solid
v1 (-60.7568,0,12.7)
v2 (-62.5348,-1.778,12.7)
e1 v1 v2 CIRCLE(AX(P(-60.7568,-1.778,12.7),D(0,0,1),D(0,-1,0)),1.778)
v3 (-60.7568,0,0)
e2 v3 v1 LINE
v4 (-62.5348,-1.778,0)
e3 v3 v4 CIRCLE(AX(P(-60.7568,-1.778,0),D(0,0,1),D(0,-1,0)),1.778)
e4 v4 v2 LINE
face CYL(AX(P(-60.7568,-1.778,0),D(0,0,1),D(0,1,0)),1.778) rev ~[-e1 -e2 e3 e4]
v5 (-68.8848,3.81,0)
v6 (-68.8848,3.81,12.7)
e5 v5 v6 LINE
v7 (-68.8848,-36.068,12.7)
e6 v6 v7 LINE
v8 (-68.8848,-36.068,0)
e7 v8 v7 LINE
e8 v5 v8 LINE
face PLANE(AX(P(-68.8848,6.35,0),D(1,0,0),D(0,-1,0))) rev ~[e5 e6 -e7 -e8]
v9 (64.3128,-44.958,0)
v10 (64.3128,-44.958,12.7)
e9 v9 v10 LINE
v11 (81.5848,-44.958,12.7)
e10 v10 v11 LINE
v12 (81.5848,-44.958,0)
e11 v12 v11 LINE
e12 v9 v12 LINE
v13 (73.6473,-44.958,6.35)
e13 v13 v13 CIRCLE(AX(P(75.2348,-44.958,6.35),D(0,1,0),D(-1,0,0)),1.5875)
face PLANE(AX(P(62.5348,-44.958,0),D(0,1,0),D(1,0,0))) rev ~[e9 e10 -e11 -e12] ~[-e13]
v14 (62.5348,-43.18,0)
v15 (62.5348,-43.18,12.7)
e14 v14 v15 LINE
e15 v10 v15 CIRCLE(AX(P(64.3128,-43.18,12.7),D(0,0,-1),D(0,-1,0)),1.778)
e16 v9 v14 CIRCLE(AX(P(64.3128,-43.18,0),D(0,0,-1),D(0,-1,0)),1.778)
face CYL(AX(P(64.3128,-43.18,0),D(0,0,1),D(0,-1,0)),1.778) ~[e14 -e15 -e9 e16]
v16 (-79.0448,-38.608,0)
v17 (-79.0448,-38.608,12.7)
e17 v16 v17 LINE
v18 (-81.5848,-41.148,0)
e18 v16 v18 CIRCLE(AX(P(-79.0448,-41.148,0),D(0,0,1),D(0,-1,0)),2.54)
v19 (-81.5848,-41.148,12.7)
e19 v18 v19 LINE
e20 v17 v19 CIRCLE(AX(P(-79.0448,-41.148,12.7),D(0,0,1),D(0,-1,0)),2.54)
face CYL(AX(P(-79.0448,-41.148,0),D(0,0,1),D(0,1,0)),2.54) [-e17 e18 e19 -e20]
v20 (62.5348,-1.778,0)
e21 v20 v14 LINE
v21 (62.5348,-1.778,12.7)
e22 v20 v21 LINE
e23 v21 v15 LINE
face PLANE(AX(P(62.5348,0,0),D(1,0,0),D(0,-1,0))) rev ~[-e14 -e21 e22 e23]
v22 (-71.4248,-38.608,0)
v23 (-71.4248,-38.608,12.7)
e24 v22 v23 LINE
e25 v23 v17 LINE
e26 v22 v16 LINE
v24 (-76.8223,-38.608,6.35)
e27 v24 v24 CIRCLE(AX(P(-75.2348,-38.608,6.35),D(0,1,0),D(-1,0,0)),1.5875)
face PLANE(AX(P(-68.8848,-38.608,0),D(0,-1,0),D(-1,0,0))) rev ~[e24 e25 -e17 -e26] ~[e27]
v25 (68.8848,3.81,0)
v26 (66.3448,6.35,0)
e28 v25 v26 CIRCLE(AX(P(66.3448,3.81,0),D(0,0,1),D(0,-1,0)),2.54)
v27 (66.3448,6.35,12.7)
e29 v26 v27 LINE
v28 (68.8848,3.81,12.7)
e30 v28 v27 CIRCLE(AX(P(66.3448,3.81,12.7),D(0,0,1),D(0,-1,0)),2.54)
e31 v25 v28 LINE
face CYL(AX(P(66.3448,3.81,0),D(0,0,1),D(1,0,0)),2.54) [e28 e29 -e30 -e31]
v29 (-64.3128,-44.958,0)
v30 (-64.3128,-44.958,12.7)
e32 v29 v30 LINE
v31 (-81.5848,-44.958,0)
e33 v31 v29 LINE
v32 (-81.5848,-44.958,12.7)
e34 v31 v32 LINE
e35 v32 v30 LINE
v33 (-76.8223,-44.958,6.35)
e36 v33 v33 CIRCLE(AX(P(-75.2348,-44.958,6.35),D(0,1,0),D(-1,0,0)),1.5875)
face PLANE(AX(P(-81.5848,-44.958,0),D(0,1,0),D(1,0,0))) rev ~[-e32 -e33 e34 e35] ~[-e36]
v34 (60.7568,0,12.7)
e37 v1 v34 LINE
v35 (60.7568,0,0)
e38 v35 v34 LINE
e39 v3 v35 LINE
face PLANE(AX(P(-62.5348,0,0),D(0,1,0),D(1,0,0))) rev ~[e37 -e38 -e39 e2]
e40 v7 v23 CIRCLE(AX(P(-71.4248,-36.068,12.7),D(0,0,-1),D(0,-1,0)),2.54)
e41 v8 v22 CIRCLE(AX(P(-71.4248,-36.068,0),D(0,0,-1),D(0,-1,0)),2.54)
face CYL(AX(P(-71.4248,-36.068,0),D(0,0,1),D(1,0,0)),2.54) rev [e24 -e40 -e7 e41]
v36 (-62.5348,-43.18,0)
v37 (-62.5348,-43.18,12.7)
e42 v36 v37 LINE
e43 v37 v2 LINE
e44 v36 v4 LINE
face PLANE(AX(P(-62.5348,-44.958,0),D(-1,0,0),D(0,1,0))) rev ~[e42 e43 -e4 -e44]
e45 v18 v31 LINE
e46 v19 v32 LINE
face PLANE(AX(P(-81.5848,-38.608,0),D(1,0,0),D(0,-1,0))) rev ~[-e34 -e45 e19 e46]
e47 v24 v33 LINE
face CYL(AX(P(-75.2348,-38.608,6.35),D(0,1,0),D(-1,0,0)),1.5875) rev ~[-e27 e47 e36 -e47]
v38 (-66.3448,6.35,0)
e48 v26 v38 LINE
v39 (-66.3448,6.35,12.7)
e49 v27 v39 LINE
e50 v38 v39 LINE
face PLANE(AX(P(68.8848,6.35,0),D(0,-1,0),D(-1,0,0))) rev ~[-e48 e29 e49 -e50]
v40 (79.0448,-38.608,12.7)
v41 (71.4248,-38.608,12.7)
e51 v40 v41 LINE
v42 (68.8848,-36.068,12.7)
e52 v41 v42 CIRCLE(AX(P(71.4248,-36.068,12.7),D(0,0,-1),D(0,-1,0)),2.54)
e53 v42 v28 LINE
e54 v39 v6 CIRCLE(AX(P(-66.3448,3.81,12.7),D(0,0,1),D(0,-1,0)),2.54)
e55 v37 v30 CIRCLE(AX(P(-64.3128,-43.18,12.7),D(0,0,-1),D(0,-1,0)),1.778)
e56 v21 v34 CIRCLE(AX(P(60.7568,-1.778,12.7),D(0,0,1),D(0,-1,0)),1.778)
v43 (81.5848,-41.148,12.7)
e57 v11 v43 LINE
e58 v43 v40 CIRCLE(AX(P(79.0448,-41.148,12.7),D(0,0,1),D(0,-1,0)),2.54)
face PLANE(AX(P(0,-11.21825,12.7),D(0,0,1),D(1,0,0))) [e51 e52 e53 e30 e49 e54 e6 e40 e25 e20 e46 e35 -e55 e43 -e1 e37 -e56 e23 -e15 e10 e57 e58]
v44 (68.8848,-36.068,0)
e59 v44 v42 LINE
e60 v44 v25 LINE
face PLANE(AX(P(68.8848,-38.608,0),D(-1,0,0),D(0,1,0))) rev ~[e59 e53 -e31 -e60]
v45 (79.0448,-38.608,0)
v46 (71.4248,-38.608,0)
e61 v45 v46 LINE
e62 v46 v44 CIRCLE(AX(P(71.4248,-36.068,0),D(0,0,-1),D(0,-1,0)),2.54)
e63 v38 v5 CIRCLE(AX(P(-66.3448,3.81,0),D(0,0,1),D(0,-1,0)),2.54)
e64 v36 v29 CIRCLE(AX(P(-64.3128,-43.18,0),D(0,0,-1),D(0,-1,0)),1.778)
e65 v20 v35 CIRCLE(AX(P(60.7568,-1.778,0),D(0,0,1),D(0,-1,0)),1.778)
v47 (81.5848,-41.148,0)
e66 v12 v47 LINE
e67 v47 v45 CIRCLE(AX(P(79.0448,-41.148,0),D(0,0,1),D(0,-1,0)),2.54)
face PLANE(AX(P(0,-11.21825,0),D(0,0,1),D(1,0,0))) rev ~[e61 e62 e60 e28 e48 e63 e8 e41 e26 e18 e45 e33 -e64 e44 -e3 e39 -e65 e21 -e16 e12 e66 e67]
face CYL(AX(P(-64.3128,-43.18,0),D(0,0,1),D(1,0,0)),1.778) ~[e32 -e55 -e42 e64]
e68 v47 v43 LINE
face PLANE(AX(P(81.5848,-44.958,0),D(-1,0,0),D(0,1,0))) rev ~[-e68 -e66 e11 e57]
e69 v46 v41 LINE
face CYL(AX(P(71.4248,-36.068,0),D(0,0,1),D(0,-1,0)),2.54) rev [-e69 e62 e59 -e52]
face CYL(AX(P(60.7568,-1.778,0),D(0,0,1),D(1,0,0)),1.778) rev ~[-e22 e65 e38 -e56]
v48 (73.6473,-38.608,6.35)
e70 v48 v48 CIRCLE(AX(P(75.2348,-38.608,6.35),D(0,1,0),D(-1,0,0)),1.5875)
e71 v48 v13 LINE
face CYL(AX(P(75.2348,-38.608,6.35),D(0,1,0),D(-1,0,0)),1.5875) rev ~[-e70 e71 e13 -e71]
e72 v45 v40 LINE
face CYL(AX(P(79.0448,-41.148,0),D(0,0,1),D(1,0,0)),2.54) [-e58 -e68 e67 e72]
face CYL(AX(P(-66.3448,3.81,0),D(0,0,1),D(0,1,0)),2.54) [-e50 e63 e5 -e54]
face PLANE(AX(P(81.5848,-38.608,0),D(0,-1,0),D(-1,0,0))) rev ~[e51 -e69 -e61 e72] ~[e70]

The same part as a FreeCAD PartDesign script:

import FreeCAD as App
import Part
import Sketcher

V = App.Vector
Q = App.Units.Quantity


def edges_at(feature, points):
    """Names of the edges that pass closest to the given points."""
    edges = feature.Shape.Edges
    near = lambda p: min(range(len(edges)), key=lambda i: edges[i].distToShape(Part.Vertex(*p))[0])
    return sorted({f"Edge{near(p) + 1}" for p in points})

doc = App.newDocument("Part")
body = doc.addObject("PartDesign::Body", "Body")

sketch1 = body.newObject("Sketcher::SketchObject", "Sketch")
sketch1.AttachmentSupport = (doc.getObject("XY_Plane"), [""])
sketch1.MapMode = "FlatFace"
sketch1.addGeometry([
    Part.LineSegment(V(-62.5348, 0, 0), V(62.5348, 0, 0)),
    Part.LineSegment(V(62.5348, 0, 0), V(62.5348, -44.958, 0)),
    Part.LineSegment(V(62.5348, -44.958, 0), V(81.5848, -44.958, 0)),
    Part.LineSegment(V(81.5848, -44.958, 0), V(81.5848, -38.608, 0)),
    Part.LineSegment(V(81.5848, -38.608, 0), V(68.8848, -38.608, 0)),
    Part.LineSegment(V(68.8848, -38.608, 0), V(68.8848, 6.35, 0)),
    Part.LineSegment(V(68.8848, 6.35, 0), V(-68.8848, 6.35, 0)),
    Part.LineSegment(V(-68.8848, 6.35, 0), V(-68.8848, -38.608, 0)),
    Part.LineSegment(V(-68.8848, -38.608, 0), V(-81.5848, -38.608, 0)),
    Part.LineSegment(V(-81.5848, -38.608, 0), V(-81.5848, -44.958, 0)),
    Part.LineSegment(V(-81.5848, -44.958, 0), V(-62.5348, -44.958, 0)),
    Part.LineSegment(V(-62.5348, -44.958, 0), V(-62.5348, 0, 0)),
], False)
sketch1.addConstraint([
    Sketcher.Constraint("Coincident", 0, 2, 1, 1),
    Sketcher.Constraint("Coincident", 1, 2, 2, 1),
    Sketcher.Constraint("Coincident", 2, 2, 3, 1),
    Sketcher.Constraint("Coincident", 3, 2, 4, 1),
    Sketcher.Constraint("Coincident", 4, 2, 5, 1),
    Sketcher.Constraint("Coincident", 5, 2, 6, 1),
    Sketcher.Constraint("Coincident", 6, 2, 7, 1),
    Sketcher.Constraint("Coincident", 7, 2, 8, 1),
    Sketcher.Constraint("Coincident", 8, 2, 9, 1),
    Sketcher.Constraint("Coincident", 9, 2, 10, 1),
    Sketcher.Constraint("Coincident", 10, 2, 11, 1),
    Sketcher.Constraint("Coincident", 11, 2, 0, 1),
    Sketcher.Constraint("Horizontal", 0),
    Sketcher.Constraint("Vertical", 1),
    Sketcher.Constraint("Horizontal", 2),
    Sketcher.Constraint("Vertical", 3),
    Sketcher.Constraint("Horizontal", 4),
    Sketcher.Constraint("Vertical", 5),
    Sketcher.Constraint("Horizontal", 6),
    Sketcher.Constraint("Vertical", 7),
    Sketcher.Constraint("Horizontal", 8),
    Sketcher.Constraint("Vertical", 9),
    Sketcher.Constraint("Horizontal", 10),
    Sketcher.Constraint("Vertical", 11),
    Sketcher.Constraint("Symmetric", 0, 2, 11, 2, -1, 1),
    Sketcher.Constraint("Symmetric", 4, 2, 7, 2, -2),
    Sketcher.Constraint("Symmetric", 2, 2, 9, 2, -2),
    Sketcher.Constraint("Equal", 1, 5),
    Sketcher.Constraint("DistanceX", 4, 2, 4, 1, Q("0.5 in")),
    Sketcher.Constraint("DistanceX", 2, 1, 2, 2, Q("0.75 in")),
    Sketcher.Constraint("DistanceY", 1, 2, 1, 1, Q("1.77 in")),
    Sketcher.Constraint("DistanceY", 3, 1, 3, 2, Q("0.25 in")),
    Sketcher.Constraint("DistanceX", 0, 1, 0, 2, Q("4.924 in")),
])
pad1 = body.newObject("PartDesign::Pad", "Pad")
pad1.Profile = sketch1
pad1.Length = Q("0.5 in")

sketch2 = body.newObject("Sketcher::SketchObject", "Sketch001")
sketch2.AttachmentSupport = (doc.getObject("XZ_Plane"), [""])
sketch2.MapMode = "FlatFace"
sketch2.AttachmentOffset = App.Placement(V(0, 0, 1.52 * 25.4), App.Rotation())
sketch2.addGeometry(Part.Circle(V(-75.2348, 6.35, 0), V(0, 0, 1), 1.5875), False)
sketch2.addConstraint([
    Sketcher.Constraint("Diameter", 0, Q("0.125 in")),
    Sketcher.Constraint("DistanceY", -1, 1, 0, 3, Q("0.25 in")),
    Sketcher.Constraint("DistanceX", 0, 3, -1, 1, Q("2.962 in")),
])
pocket1 = body.newObject("PartDesign::Pocket", "Pocket")
pocket1.Profile = sketch2
pocket1.Length = Q("1 in")
pocket1.Reversed = True

sketch3 = body.newObject("Sketcher::SketchObject", "Sketch002")
sketch3.AttachmentSupport = (doc.getObject("XZ_Plane"), [""])
sketch3.MapMode = "FlatFace"
sketch3.AttachmentOffset = App.Placement(V(0, 0, 1.52 * 25.4), App.Rotation())
sketch3.addGeometry(Part.Circle(V(75.2348, 6.35, 0), V(0, 0, 1), 1.5875), False)
sketch3.addConstraint([
    Sketcher.Constraint("Diameter", 0, Q("0.125 in")),
    Sketcher.Constraint("DistanceY", -1, 1, 0, 3, Q("0.25 in")),
    Sketcher.Constraint("DistanceX", -1, 1, 0, 3, Q("2.962 in")),
])
pocket2 = body.newObject("PartDesign::Pocket", "Pocket001")
pocket2.Profile = sketch3
pocket2.Length = Q("1 in")
pocket2.Reversed = True
doc.recompute()

fillet = body.newObject("PartDesign::Fillet", "Fillet")
fillet.Base = (pocket2, edges_at(pocket2, [
    (81.585, -38.608, 6.35),
    (68.885, 6.35, 6.35),
    (68.885, -38.608, 6.35),
    (-68.885, 6.35, 6.35),
    (-68.885, -38.608, 6.35),
    (-81.585, -38.608, 6.35),
]))
fillet.Radius = Q("0.1 in")
doc.recompute()

fillet2 = body.newObject("PartDesign::Fillet", "Fillet001")
fillet2.Base = (fillet, edges_at(fillet, [
    (62.535, 0, 6.35),
    (-62.535, 0, 6.35),
    (-62.535, -44.958, 6.35),
    (62.535, -44.958, 6.35),
]))
fillet2.Radius = Q("0.07 in")

doc.recompute()
